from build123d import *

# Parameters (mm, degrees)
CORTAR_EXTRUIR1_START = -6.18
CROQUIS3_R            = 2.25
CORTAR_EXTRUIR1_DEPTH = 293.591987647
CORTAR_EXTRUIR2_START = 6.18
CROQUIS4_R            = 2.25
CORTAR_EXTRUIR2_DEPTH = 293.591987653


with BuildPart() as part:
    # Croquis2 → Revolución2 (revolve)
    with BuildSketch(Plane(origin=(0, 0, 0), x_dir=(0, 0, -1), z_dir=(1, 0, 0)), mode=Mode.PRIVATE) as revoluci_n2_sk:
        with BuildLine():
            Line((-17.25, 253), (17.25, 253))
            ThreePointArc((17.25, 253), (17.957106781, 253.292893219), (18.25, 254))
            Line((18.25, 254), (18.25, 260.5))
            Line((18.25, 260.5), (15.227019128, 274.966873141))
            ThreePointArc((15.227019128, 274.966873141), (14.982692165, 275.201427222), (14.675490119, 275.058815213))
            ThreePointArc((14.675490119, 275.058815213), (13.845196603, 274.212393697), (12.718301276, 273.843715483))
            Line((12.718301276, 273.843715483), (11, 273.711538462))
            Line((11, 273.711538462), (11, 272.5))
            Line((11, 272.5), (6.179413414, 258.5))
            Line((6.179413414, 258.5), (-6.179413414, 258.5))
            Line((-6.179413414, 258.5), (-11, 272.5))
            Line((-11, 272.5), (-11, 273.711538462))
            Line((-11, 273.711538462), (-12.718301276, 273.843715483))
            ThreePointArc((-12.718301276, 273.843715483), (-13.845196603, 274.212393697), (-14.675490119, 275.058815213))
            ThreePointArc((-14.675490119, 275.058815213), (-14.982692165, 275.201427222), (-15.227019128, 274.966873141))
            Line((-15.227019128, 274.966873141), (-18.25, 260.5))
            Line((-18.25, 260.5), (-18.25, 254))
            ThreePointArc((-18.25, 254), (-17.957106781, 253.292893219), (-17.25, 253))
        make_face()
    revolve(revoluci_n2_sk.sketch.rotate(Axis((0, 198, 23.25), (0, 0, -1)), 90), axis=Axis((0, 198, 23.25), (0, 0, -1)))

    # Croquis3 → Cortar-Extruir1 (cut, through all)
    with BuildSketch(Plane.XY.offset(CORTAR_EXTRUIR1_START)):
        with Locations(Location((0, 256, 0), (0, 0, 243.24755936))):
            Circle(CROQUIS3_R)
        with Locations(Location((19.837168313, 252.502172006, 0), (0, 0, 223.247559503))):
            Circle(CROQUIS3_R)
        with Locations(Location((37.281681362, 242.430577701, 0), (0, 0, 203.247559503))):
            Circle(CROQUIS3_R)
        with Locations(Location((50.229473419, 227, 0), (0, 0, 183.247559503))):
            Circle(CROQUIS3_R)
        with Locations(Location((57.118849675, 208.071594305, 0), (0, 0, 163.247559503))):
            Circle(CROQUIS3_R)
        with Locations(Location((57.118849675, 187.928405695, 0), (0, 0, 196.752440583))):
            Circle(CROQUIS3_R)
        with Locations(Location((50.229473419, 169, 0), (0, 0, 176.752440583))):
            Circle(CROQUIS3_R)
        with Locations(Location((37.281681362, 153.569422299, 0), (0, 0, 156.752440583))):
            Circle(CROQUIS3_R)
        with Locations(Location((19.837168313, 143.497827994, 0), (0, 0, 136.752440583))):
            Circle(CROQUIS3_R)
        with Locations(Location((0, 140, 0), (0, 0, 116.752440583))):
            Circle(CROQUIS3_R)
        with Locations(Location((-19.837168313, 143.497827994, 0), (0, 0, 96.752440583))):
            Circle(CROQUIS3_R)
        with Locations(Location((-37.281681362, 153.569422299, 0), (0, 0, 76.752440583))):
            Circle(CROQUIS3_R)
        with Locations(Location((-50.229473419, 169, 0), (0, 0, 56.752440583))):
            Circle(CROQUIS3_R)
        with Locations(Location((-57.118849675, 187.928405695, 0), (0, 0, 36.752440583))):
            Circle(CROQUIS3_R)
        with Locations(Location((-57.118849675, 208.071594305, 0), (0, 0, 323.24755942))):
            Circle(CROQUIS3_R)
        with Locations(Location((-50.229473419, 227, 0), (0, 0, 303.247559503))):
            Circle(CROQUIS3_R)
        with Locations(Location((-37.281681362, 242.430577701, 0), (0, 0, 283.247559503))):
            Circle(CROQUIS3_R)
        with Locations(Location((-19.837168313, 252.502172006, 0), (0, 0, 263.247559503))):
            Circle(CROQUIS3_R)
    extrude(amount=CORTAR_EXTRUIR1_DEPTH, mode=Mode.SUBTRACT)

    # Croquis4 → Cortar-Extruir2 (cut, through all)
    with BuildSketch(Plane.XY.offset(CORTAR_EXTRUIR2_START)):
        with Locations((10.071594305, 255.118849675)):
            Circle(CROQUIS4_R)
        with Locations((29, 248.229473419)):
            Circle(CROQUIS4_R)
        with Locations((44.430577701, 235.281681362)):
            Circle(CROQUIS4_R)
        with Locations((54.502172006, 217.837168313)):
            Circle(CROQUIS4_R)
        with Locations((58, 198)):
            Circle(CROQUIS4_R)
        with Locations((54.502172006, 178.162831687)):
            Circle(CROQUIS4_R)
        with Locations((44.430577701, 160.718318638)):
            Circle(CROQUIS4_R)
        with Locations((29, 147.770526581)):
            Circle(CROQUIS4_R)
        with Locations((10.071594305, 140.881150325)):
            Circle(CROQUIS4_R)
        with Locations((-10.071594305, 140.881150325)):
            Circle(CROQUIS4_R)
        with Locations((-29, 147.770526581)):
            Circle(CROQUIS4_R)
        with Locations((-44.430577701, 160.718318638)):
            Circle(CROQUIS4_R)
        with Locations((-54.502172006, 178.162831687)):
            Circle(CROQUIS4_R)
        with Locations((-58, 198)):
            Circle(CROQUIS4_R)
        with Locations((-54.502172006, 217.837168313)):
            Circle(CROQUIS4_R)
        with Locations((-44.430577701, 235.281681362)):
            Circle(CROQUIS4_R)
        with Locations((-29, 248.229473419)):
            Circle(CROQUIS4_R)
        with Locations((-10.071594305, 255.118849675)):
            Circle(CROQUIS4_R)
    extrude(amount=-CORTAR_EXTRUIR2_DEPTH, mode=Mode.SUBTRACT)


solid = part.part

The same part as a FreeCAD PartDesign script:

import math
import FreeCAD as App
import Part
import Sketcher
from FreeCAD import Vector
Q = App.Units.Quantity

doc = App.newDocument("Part")
params = doc.addObject("Spreadsheet::Sheet", "Params")
for row, (alias, value) in enumerate([
    ("sketch1_radius", "1 mm"),
    ("sketch1_radius2", "0.3 mm"),
    ("sketch1_radius3", "2.5 mm"),
    ("sketch1_width", "6.5 mm"),
    ("sketch1_height", "34.5 mm"),
    ("revolution_angle", "360 deg"),
    ("sketch2_diameter", "4.5 mm"),
    ("sketch3_diameter", "4.5 mm"),
], start=1):
    params.set(f"A{row}", alias)
    params.set(f"B{row}", "=" + value)
    params.setAlias(f"B{row}", alias)

body = doc.addObject("PartDesign::Body", "Body")

# Sketch on YZ plane
sketch1 = body.newObject("Sketcher::SketchObject", "Sketch")
sketch1.AttachmentSupport = (doc.getObject("YZ_Plane"), [""])
sketch1.MapMode = "FlatFace"
sketch1.addGeometry([
    Part.LineSegment(Vector(253, 17.25, 0), Vector(253, -17.25, 0)),  # 0
    Part.ArcOfCircle(Part.Circle(Vector(254, -17.25, 0), Vector(0, 0, 1), 1), math.radians(-180), math.radians(-90)),  # 1
    Part.LineSegment(Vector(254, -18.25, 0), Vector(260.5, -18.25, 0)),  # 2
    Part.LineSegment(Vector(260.5, -18.25, 0), Vector(274.97, -15.23, 0)),  # 3
    Part.ArcOfCircle(Part.Circle(Vector(274.91, -14.93, 0), Vector(0, 0, 1), 0.3), math.radians(-78), math.radians(59)),  # 4
    Part.ArcOfCircle(Part.Circle(Vector(276.34, -12.53, 0), Vector(0, 0, 1), 2.5), math.radians(-176), math.radians(-121)),  # 5
    Part.LineSegment(Vector(273.84, -12.72, 0), Vector(273.71, -11, 0)),  # 6
    Part.LineSegment(Vector(273.71, -11, 0), Vector(272.5, -11, 0)),  # 7
    Part.LineSegment(Vector(272.5, -11, 0), Vector(258.5, -6.18, 0)),  # 8
    Part.LineSegment(Vector(258.5, -6.18, 0), Vector(258.5, 6.18, 0)),  # 9
    Part.LineSegment(Vector(258.5, 6.18, 0), Vector(272.5, 11, 0)),  # 10
    Part.LineSegment(Vector(272.5, 11, 0), Vector(273.71, 11, 0)),  # 11
    Part.LineSegment(Vector(273.71, 11, 0), Vector(273.84, 12.72, 0)),  # 12
    Part.ArcOfCircle(Part.Circle(Vector(276.34, 12.53, 0), Vector(0, 0, 1), 2.5), math.radians(121), math.radians(176)),  # 13
    Part.ArcOfCircle(Part.Circle(Vector(274.91, 14.93, 0), Vector(0, 0, 1), 0.3), math.radians(-59), math.radians(78)),  # 14
    Part.LineSegment(Vector(274.97, 15.23, 0), Vector(260.5, 18.25, 0)),  # 15
    Part.LineSegment(Vector(260.5, 18.25, 0), Vector(254, 18.25, 0)),  # 16
    Part.ArcOfCircle(Part.Circle(Vector(254, 17.25, 0), Vector(0, 0, 1), 1), math.radians(90), math.radians(180)),  # 17
], False)
sketch1.addGeometry(Part.LineSegment(Vector(198, 18.25, 0), Vector(198, -18.25, 0)), True)  # axis
sketch1.addConstraint([
    Sketcher.Constraint("Tangent", 0, 2, 1, 1),
    Sketcher.Constraint("Tangent", 1, 2, 2, 1),
    Sketcher.Constraint("Coincident", 2, 2, 3, 1),
    Sketcher.Constraint("Tangent", 3, 2, 4, 1),
    Sketcher.Constraint("Tangent", 4, 2, 5, 2),
    Sketcher.Constraint("Tangent", 5, 1, 6, 1),
    Sketcher.Constraint("Coincident", 6, 2, 7, 1),
    Sketcher.Constraint("Coincident", 7, 2, 8, 1),
    Sketcher.Constraint("Coincident", 8, 2, 9, 1),
    Sketcher.Constraint("Coincident", 9, 2, 10, 1),
    Sketcher.Constraint("Coincident", 10, 2, 11, 1),
    Sketcher.Constraint("Coincident", 11, 2, 12, 1),
    Sketcher.Constraint("Tangent", 12, 2, 13, 2),
    Sketcher.Constraint("Tangent", 13, 1, 14, 1),
    Sketcher.Constraint("Tangent", 14, 2, 15, 1),
    Sketcher.Constraint("Coincident", 15, 2, 16, 1),
    Sketcher.Constraint("Tangent", 16, 2, 17, 1),
    Sketcher.Constraint("Tangent", 17, 2, 0, 1),
    Sketcher.Constraint("Vertical", 0),
    Sketcher.Constraint("Horizontal", 2),
    Sketcher.Constraint("Horizontal", 7),
    Sketcher.Constraint("Vertical", 9),
    Sketcher.Constraint("Horizontal", 11),
    Sketcher.Constraint("Horizontal", 16),
    Sketcher.Constraint("Vertical", 18),
    Sketcher.Constraint("Equal", 5, 13),
    Sketcher.Constraint("Equal", 4, 14),
    Sketcher.Constraint("Equal", 1, 17),
    Sketcher.Constraint("Symmetric", 5, 3, 13, 3, -1),
    Sketcher.Constraint("Symmetric", 7, 2, 10, 2, -1),
    Sketcher.Constraint("Symmetric", 3, 2, 14, 2, -1),
    Sketcher.Constraint("Horizontal", 16, 2, 18, 1),
    Sketcher.Constraint("Horizontal", 2, 2, 18, 2),
    Sketcher.Constraint("Vertical", 6, 2, 11, 2),
    Sketcher.Constraint("Vertical", 2, 2, 15, 2),
    Sketcher.Constraint("Equal", 8, 10),
    Sketcher.Constraint("Radius", 1, Q("1 mm")),
    Sketcher.Constraint("Radius", 4, Q("0.3 mm")),
    Sketcher.Constraint("Radius", 5, Q("2.5 mm")),
    Sketcher.Constraint("Angle", 8, Q("161 deg")),
    Sketcher.Constraint("DistanceX", 2, 1, 2, 2, Q("6.5 mm")),
    Sketcher.Constraint("DistanceY", 0, 2, 0, 1, Q("34.5 mm")),
    Sketcher.Constraint("DistanceX", -1, 1, 1, 3, Q("254 mm")),
    Sketcher.Constraint("DistanceY", 6, 2, -1, 1, Q("11 mm")),
    Sketcher.Constraint("DistanceX", -1, 1, 18, 1, Q("198 mm")),
    Sketcher.Constraint("DistanceX", 8, 2, 2, 2, Q("2 mm")),
    Sketcher.Constraint("DistanceX", 8, 2, 7, 2, Q("14 mm")),
    Sketcher.Constraint("DistanceX", 7, 2, 7, 1, Q("1.211538 mm")),
    Sketcher.Constraint("DistanceY", 5, 1, -1, 1, Q("12.718301 mm")),
    Sketcher.Constraint("DistanceY", 4, 3, 5, 3, Q("2.406802 mm")),
    Sketcher.Constraint("DistanceX", 5, 1, 4, 2, Q("1.2151 mm")),
])
sketch1.setExpression("Constraints[36]", "Params.sketch1_radius")
sketch1.setExpression("Constraints[37]", "Params.sketch1_radius2")
sketch1.setExpression("Constraints[38]", "Params.sketch1_radius3")
sketch1.setExpression("Constraints[40]", "Params.sketch1_width")
sketch1.setExpression("Constraints[41]", "Params.sketch1_height")
revolution = body.newObject("PartDesign::Revolution", "Revolution")
revolution.Profile = sketch1
revolution.ReferenceAxis = (sketch1, ["Axis0"])
revolution.setExpression("Angle", "Params.revolution_angle")

# Sketch on XY plane
sketch2 = body.newObject("Sketcher::SketchObject", "Sketch001")
sketch2.AttachmentSupport = (doc.getObject("XY_Plane"), [""])
sketch2.MapMode = "FlatFace"
sketch2.AttachmentOffset = App.Placement(Vector(0, 0, -6.18), App.Rotation())
sketch2.addGeometry([
    Part.Circle(Vector(0, 256, 0), Vector(0, 0, 1), 2.2),  # 0
    Part.Circle(Vector(19.8, 252.5, 0), Vector(0, 0, 1), 2.2),  # 1
    Part.Circle(Vector(37.3, 242.4, 0), Vector(0, 0, 1), 2.2),  # 2
    Part.Circle(Vector(50.2, 227, 0), Vector(0, 0, 1), 2.2),  # 3
    Part.Circle(Vector(57.1, 208.1, 0), Vector(0, 0, 1), 2.2),  # 4
    Part.Circle(Vector(57.1, 187.9, 0), Vector(0, 0, 1), 2.2),  # 5
    Part.Circle(Vector(50.2, 169, 0), Vector(0, 0, 1), 2.2),  # 6
    Part.Circle(Vector(37.3, 153.6, 0), Vector(0, 0, 1), 2.2),  # 7
    Part.Circle(Vector(19.8, 143.5, 0), Vector(0, 0, 1), 2.2),  # 8
    Part.Circle(Vector(0, 140, 0), Vector(0, 0, 1), 2.2),  # 9
    Part.Circle(Vector(-19.8, 143.5, 0), Vector(0, 0, 1), 2.2),  # 10
    Part.Circle(Vector(-37.3, 153.6, 0), Vector(0, 0, 1), 2.2),  # 11
    Part.Circle(Vector(-50.2, 169, 0), Vector(0, 0, 1), 2.2),  # 12
    Part.Circle(Vector(-57.1, 187.9, 0), Vector(0, 0, 1), 2.2),  # 13
    Part.Circle(Vector(-57.1, 208.1, 0), Vector(0, 0, 1), 2.2),  # 14
    Part.Circle(Vector(-50.2, 227, 0), Vector(0, 0, 1), 2.2),  # 15
    Part.Circle(Vector(-37.3, 242.4, 0), Vector(0, 0, 1), 2.2),  # 16
    Part.Circle(Vector(-19.8, 252.5, 0), Vector(0, 0, 1), 2.2),  # 17
], False)
sketch2.addConstraint([
    Sketcher.Constraint("Equal", 0, 1),
    Sketcher.Constraint("Equal", 1, 2),
    Sketcher.Constraint("Equal", 2, 3),
    Sketcher.Constraint("Equal", 3, 4),
    Sketcher.Constraint("Equal", 4, 5),
    Sketcher.Constraint("Equal", 5, 6),
    Sketcher.Constraint("Equal", 6, 7),
    Sketcher.Constraint("Equal", 7, 8),
    Sketcher.Constraint("Equal", 8, 9),
    Sketcher.Constraint("Equal", 9, 10),
    Sketcher.Constraint("Equal", 10, 11),
    Sketcher.Constraint("Equal", 11, 12),
    Sketcher.Constraint("Equal", 12, 13),
    Sketcher.Constraint("Equal", 13, 14),
    Sketcher.Constraint("Equal", 14, 15),
    Sketcher.Constraint("Equal", 15, 16),
    Sketcher.Constraint("Equal", 16, 17),
    Sketcher.Constraint("Symmetric", 8, 3, 10, 3, -2),
    Sketcher.Constraint("Symmetric", 7, 3, 11, 3, -2),
    Sketcher.Constraint("Symmetric", 6, 3, 12, 3, -2),
    Sketcher.Constraint("Symmetric", 5, 3, 13, 3, -2),
    Sketcher.Constraint("Symmetric", 4, 3, 14, 3, -2),
    Sketcher.Constraint("Symmetric", 3, 3, 15, 3, -2),
    Sketcher.Constraint("Symmetric", 2, 3, 16, 3, -2),
    Sketcher.Constraint("Symmetric", 1, 3, 17, 3, -2),
    Sketcher.Constraint("PointOnObject", 0, 3, -2),
    Sketcher.Constraint("PointOnObject", 9, 3, -2),
    Sketcher.Constraint("Vertical", 4, 3, 5, 3),
    Sketcher.Constraint("Vertical", 3, 3, 6, 3),
    Sketcher.Constraint("Vertical", 2, 3, 7, 3),
    Sketcher.Constraint("Vertical", 1, 3, 8, 3),
    Sketcher.Constraint("Diameter", 0, Q("4.5 mm")),
    Sketcher.Constraint("DistanceY", -1, 1, 0, 3, Q("256 mm")),
    Sketcher.Constraint("DistanceY", -1, 1, 3, 3, Q("227 mm")),
    Sketcher.Constraint("DistanceY", -1, 1, 6, 3, Q("169 mm")),
    Sketcher.Constraint("DistanceY", -1, 1, 9, 3, Q("140 mm")),
    Sketcher.Constraint("DistanceX", -1, 1, 1, 3, Q("19.837168 mm")),
    Sketcher.Constraint("DistanceX", -1, 1, 2, 3, Q("37.281681 mm")),
    Sketcher.Constraint("DistanceX", -1, 1, 4, 3, Q("57.11885 mm")),
    Sketcher.Constraint("DistanceY", 5, 3, 4, 3, Q("20.143189 mm")),
    Sketcher.Constraint("DistanceX", 10, 3, 6, 3, Q("70.066642 mm")),
    Sketcher.Constraint("DistanceY", -1, 1, 1, 3, Q("252.502172 mm")),
    Sketcher.Constraint("DistanceY", -1, 1, 2, 3, Q("242.430578 mm")),
    Sketcher.Constraint("DistanceY", -1, 1, 4, 3, Q("208.071594 mm")),
    Sketcher.Constraint("DistanceY", -1, 1, 7, 3, Q("153.569422 mm")),
    Sketcher.Constraint("DistanceY", -1, 1, 8, 3, Q("143.497828 mm")),
])
sketch2.setExpression("Constraints[31]", "Params.sketch2_diameter")
pocket1 = body.newObject("PartDesign::Pocket", "Pocket")
pocket1.Profile = sketch2
pocket1.Type = "ThroughAll"
pocket1.Reversed = True

# Sketch on XY plane
sketch3 = body.newObject("Sketcher::SketchObject", "Sketch002")
sketch3.AttachmentSupport = (doc.getObject("XY_Plane"), [""])
sketch3.MapMode = "FlatFace"
sketch3.AttachmentOffset = App.Placement(Vector(0, 0, 6.18), App.Rotation())
sketch3.addGeometry([
    Part.Circle(Vector(10.1, 255.1, 0), Vector(0, 0, 1), 2.2),  # 0
    Part.Circle(Vector(29, 248.2, 0), Vector(0, 0, 1), 2.2),  # 1
    Part.Circle(Vector(44.4, 235.3, 0), Vector(0, 0, 1), 2.2),  # 2
    Part.Circle(Vector(54.5, 217.8, 0), Vector(0, 0, 1), 2.2),  # 3
    Part.Circle(Vector(58, 198, 0), Vector(0, 0, 1), 2.2),  # 4
    Part.Circle(Vector(54.5, 178.2, 0), Vector(0, 0, 1), 2.2),  # 5
    Part.Circle(Vector(44.4, 160.7, 0), Vector(0, 0, 1), 2.2),  # 6
    Part.Circle(Vector(29, 147.8, 0), Vector(0, 0, 1), 2.2),  # 7
    Part.Circle(Vector(10.1, 140.9, 0), Vector(0, 0, 1), 2.2),  # 8
    Part.Circle(Vector(-10.1, 140.9, 0), Vector(0, 0, 1), 2.2),  # 9
    Part.Circle(Vector(-29, 147.8, 0), Vector(0, 0, 1), 2.2),  # 10
    Part.Circle(Vector(-44.4, 160.7, 0), Vector(0, 0, 1), 2.2),  # 11
    Part.Circle(Vector(-54.5, 178.2, 0), Vector(0, 0, 1), 2.2),  # 12
    Part.Circle(Vector(-58, 198, 0), Vector(0, 0, 1), 2.2),  # 13
    Part.Circle(Vector(-54.5, 217.8, 0), Vector(0, 0, 1), 2.2),  # 14
    Part.Circle(Vector(-44.4, 235.3, 0), Vector(0, 0, 1), 2.2),  # 15
    Part.Circle(Vector(-29, 248.2, 0), Vector(0, 0, 1), 2.2),  # 16
    Part.Circle(Vector(-10.1, 255.1, 0), Vector(0, 0, 1), 2.2),  # 17
], False)
sketch3.addConstraint([
    Sketcher.Constraint("Equal", 0, 1),
    Sketcher.Constraint("Equal", 1, 2),
    Sketcher.Constraint("Equal", 2, 3),
    Sketcher.Constraint("Equal", 3, 4),
    Sketcher.Constraint("Equal", 4, 5),
    Sketcher.Constraint("Equal", 5, 6),
    Sketcher.Constraint("Equal", 6, 7),
    Sketcher.Constraint("Equal", 7, 8),
    Sketcher.Constraint("Equal", 8, 9),
    Sketcher.Constraint("Equal", 9, 10),
    Sketcher.Constraint("Equal", 10, 11),
    Sketcher.Constraint("Equal", 11, 12),
    Sketcher.Constraint("Equal", 12, 13),
    Sketcher.Constraint("Equal", 13, 14),
    Sketcher.Constraint("Equal", 14, 15),
    Sketcher.Constraint("Equal", 15, 16),
    Sketcher.Constraint("Equal", 16, 17),
    Sketcher.Constraint("Symmetric", 8, 3, 9, 3, -2),
    Sketcher.Constraint("Symmetric", 7, 3, 10, 3, -2),
    Sketcher.Constraint("Symmetric", 6, 3, 11, 3, -2),
    Sketcher.Constraint("Symmetric", 5, 3, 12, 3, -2),
    Sketcher.Constraint("Symmetric", 4, 3, 13, 3, -2),
    Sketcher.Constraint("Symmetric", 3, 3, 14, 3, -2),
    Sketcher.Constraint("Symmetric", 2, 3, 15, 3, -2),
    Sketcher.Constraint("Symmetric", 1, 3, 16, 3, -2),
    Sketcher.Constraint("Symmetric", 0, 3, 17, 3, -2),
    Sketcher.Constraint("Vertical", 3, 3, 5, 3),
    Sketcher.Constraint("Vertical", 2, 3, 6, 3),
    Sketcher.Constraint("Vertical", 1, 3, 7, 3),
    Sketcher.Constraint("Vertical", 0, 3, 8, 3),
    Sketcher.Constraint("Diameter", 0, Q("4.5 mm")),
    Sketcher.Constraint("DistanceX", -1, 1, 1, 3, Q("29 mm")),
    Sketcher.Constraint("DistanceX", -1, 1, 4, 3, Q("58 mm")),
    Sketcher.Constraint("DistanceY", -1, 1, 4, 3, Q("198 mm")),
    Sketcher.Constraint("DistanceY", -1, 1, 0, 3, Q("255.11885 mm")),
    Sketcher.Constraint("DistanceY", -1, 1, 2, 3, Q("235.281681 mm")),
    Sketcher.Constraint("DistanceY", -1, 1, 3, 3, Q("217.837168 mm")),
    Sketcher.Constraint("DistanceY", -1, 1, 5, 3, Q("178.162832 mm")),
    Sketcher.Constraint("DistanceY", -1, 1, 6, 3, Q("160.718319 mm")),
    Sketcher.Constraint("DistanceY", -1, 1, 8, 3, Q("140.88115 mm")),
    Sketcher.Constraint("DistanceY", 5, 3, 1, 3, Q("70.066642 mm")),
    Sketcher.Constraint("DistanceY", 7, 3, 3, 3, Q("70.066642 mm")),
    Sketcher.Constraint("DistanceX", 9, 3, 8, 3, Q("20.143189 mm")),
    Sketcher.Constraint("DistanceX", -1, 1, 2, 3, Q("44.430578 mm")),
    Sketcher.Constraint("DistanceX", -1, 1, 3, 3, Q("54.502172 mm")),
])
sketch3.setExpression("Constraints[30]", "Params.sketch3_diameter")
pocket2 = body.newObject("PartDesign::Pocket", "Pocket001")
pocket2.Profile = sketch3
pocket2.Type = "ThroughAll"

doc.recompute()
